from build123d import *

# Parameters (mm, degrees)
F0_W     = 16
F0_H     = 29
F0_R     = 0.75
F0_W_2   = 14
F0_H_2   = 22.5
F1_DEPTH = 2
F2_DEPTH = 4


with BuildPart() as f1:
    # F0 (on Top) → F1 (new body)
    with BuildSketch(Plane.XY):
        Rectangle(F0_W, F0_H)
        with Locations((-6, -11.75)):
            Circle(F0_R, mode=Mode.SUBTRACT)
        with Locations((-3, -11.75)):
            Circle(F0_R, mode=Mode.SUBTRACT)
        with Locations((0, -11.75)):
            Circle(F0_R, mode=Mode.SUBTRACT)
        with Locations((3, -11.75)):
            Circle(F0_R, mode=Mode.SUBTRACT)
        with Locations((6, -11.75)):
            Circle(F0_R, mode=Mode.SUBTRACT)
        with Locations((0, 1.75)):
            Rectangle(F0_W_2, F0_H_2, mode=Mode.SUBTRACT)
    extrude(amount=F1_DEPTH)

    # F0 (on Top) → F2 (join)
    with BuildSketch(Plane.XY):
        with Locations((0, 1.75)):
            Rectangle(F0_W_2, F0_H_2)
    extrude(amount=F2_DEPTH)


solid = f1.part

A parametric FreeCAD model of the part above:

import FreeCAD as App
import Part
import Sketcher
from FreeCAD import Vector
Q = App.Units.Quantity


def add_polygon(sketch, points):
    """Adds a closed chain of lines whose ends are joined by coincident constraints."""
    first, n = sketch.GeometryCount, len(points)
    for a, b in zip(points, points[1:] + points[:1]):
        sketch.addGeometry(Part.LineSegment(App.Vector(*a, 0), App.Vector(*b, 0)), False)
    for i in range(n):
        sketch.addConstraint(Sketcher.Constraint("Coincident", first + i, 2, first + (i + 1) % n, 1))

doc = App.newDocument("Part")
body = doc.addObject("PartDesign::Body", "Body")

# Sketch on XY plane
sketch1 = body.newObject("Sketcher::SketchObject", "Sketch")
sketch1.AttachmentSupport = (doc.getObject("XY_Plane"), [""])
sketch1.MapMode = "FlatFace"
add_polygon(sketch1, [(-8, 14.5), (-8, -14.5), (8, -14.5), (8, 14.5)])  # lines 0-3
sketch1.addGeometry(Part.Circle(Vector(-6, -11.8, 0), Vector(0, 0, 1), 0.8), False)  # 4
sketch1.addGeometry(Part.Circle(Vector(-3, -11.8, 0), Vector(0, 0, 1), 0.8), False)  # 5
sketch1.addGeometry(Part.Circle(Vector(0, -11.8, 0), Vector(0, 0, 1), 0.8), False)  # 6
sketch1.addGeometry(Part.Circle(Vector(3, -11.8, 0), Vector(0, 0, 1), 0.8), False)  # 7
sketch1.addGeometry(Part.Circle(Vector(6, -11.8, 0), Vector(0, 0, 1), 0.8), False)  # 8
add_polygon(sketch1, [(7, -9.5), (-7, -9.5), (-7, 13), (7, 13)])  # lines 9-12
sketch1.addConstraint(Sketcher.Constraint("Vertical", 0))
sketch1.addConstraint(Sketcher.Constraint("Horizontal", 1))
sketch1.addConstraint(Sketcher.Constraint("Vertical", 2))
sketch1.addConstraint(Sketcher.Constraint("Horizontal", 3))
sketch1.addConstraint(Sketcher.Constraint("Horizontal", 9))
sketch1.addConstraint(Sketcher.Constraint("Vertical", 10))
sketch1.addConstraint(Sketcher.Constraint("Horizontal", 11))
sketch1.addConstraint(Sketcher.Constraint("Vertical", 12))
sketch1.addConstraint(Sketcher.Constraint("Equal", 4, 5))
sketch1.addConstraint(Sketcher.Constraint("Equal", 5, 6))
sketch1.addConstraint(Sketcher.Constraint("Equal", 6, 7))
sketch1.addConstraint(Sketcher.Constraint("Equal", 7, 8))
sketch1.addConstraint(Sketcher.Constraint("Symmetric", 0, 2, 2, 2, -1, 1))
sketch1.addConstraint(Sketcher.Constraint("Symmetric", 5, 3, 7, 3, -2))
sketch1.addConstraint(Sketcher.Constraint("Symmetric", 4, 3, 8, 3, -2))
sketch1.addConstraint(Sketcher.Constraint("PointOnObject", 6, 3, -2))
sketch1.addConstraint(Sketcher.Constraint("Horizontal", 4, 3, 5, 3))
sketch1.addConstraint(Sketcher.Constraint("Horizontal", 5, 3, 6, 3))
sketch1.addConstraint(Sketcher.Constraint("Diameter", 4, Q("1.5 mm")))
sketch1.addConstraint(Sketcher.Constraint("DistanceX", 1, 1, 1, 2, Q("16 mm")))
sketch1.addConstraint(Sketcher.Constraint("DistanceX", 9, 2, 9, 1, Q("14 mm")))
sketch1.addConstraint(Sketcher.Constraint("DistanceY", 0, 2, 0, 1, Q("29 mm")))
sketch1.addConstraint(Sketcher.Constraint("DistanceY", 10, 1, 10, 2, Q("22.5 mm")))
sketch1.addConstraint(Sketcher.Constraint("DistanceX", 4, 3, -1, 1, Q("6 mm")))
sketch1.addConstraint(Sketcher.Constraint("DistanceX", 5, 3, -1, 1, Q("3 mm")))
sketch1.addConstraint(Sketcher.Constraint("DistanceX", 9, 2, -1, 1, Q("7 mm")))
sketch1.addConstraint(Sketcher.Constraint("DistanceY", -1, 1, 10, 2, Q("13 mm")))
sketch1.addConstraint(Sketcher.Constraint("DistanceY", 4, 3, -1, 1, Q("11.75 mm")))
pad1 = body.newObject("PartDesign::Pad", "Pad")
pad1.Profile = sketch1
pad1.Length = 2

# Sketch on XY plane
sketch2 = body.newObject("Sketcher::SketchObject", "Sketch001")
sketch2.AttachmentSupport = (doc.getObject("XY_Plane"), [""])
sketch2.MapMode = "FlatFace"
add_polygon(sketch2, [(-7, 13), (-7, -10), (7, -10), (7, 13)])  # lines 0-3
sketch2.addConstraint(Sketcher.Constraint("Vertical", 0))
sketch2.addConstraint(Sketcher.Constraint("Horizontal", 1))
sketch2.addConstraint(Sketcher.Constraint("Vertical", 2))
sketch2.addConstraint(Sketcher.Constraint("Horizontal", 3))
sketch2.addConstraint(Sketcher.Constraint("DistanceX", 1, 1, 1, 2, Q("14 mm")))
sketch2.addConstraint(Sketcher.Constraint("DistanceY", 0, 2, 0, 1, Q("22.5 mm")))
sketch2.addConstraint(Sketcher.Constraint("DistanceX", 0, 2, -1, 1, Q("7 mm")))
sketch2.addConstraint(Sketcher.Constraint("DistanceY", -1, 1, 2, 2, Q("13 mm")))
pad2 = body.newObject("PartDesign::Pad", "Pad001")
pad2.Profile = sketch2
pad2.Length = 4

doc.recompute()
